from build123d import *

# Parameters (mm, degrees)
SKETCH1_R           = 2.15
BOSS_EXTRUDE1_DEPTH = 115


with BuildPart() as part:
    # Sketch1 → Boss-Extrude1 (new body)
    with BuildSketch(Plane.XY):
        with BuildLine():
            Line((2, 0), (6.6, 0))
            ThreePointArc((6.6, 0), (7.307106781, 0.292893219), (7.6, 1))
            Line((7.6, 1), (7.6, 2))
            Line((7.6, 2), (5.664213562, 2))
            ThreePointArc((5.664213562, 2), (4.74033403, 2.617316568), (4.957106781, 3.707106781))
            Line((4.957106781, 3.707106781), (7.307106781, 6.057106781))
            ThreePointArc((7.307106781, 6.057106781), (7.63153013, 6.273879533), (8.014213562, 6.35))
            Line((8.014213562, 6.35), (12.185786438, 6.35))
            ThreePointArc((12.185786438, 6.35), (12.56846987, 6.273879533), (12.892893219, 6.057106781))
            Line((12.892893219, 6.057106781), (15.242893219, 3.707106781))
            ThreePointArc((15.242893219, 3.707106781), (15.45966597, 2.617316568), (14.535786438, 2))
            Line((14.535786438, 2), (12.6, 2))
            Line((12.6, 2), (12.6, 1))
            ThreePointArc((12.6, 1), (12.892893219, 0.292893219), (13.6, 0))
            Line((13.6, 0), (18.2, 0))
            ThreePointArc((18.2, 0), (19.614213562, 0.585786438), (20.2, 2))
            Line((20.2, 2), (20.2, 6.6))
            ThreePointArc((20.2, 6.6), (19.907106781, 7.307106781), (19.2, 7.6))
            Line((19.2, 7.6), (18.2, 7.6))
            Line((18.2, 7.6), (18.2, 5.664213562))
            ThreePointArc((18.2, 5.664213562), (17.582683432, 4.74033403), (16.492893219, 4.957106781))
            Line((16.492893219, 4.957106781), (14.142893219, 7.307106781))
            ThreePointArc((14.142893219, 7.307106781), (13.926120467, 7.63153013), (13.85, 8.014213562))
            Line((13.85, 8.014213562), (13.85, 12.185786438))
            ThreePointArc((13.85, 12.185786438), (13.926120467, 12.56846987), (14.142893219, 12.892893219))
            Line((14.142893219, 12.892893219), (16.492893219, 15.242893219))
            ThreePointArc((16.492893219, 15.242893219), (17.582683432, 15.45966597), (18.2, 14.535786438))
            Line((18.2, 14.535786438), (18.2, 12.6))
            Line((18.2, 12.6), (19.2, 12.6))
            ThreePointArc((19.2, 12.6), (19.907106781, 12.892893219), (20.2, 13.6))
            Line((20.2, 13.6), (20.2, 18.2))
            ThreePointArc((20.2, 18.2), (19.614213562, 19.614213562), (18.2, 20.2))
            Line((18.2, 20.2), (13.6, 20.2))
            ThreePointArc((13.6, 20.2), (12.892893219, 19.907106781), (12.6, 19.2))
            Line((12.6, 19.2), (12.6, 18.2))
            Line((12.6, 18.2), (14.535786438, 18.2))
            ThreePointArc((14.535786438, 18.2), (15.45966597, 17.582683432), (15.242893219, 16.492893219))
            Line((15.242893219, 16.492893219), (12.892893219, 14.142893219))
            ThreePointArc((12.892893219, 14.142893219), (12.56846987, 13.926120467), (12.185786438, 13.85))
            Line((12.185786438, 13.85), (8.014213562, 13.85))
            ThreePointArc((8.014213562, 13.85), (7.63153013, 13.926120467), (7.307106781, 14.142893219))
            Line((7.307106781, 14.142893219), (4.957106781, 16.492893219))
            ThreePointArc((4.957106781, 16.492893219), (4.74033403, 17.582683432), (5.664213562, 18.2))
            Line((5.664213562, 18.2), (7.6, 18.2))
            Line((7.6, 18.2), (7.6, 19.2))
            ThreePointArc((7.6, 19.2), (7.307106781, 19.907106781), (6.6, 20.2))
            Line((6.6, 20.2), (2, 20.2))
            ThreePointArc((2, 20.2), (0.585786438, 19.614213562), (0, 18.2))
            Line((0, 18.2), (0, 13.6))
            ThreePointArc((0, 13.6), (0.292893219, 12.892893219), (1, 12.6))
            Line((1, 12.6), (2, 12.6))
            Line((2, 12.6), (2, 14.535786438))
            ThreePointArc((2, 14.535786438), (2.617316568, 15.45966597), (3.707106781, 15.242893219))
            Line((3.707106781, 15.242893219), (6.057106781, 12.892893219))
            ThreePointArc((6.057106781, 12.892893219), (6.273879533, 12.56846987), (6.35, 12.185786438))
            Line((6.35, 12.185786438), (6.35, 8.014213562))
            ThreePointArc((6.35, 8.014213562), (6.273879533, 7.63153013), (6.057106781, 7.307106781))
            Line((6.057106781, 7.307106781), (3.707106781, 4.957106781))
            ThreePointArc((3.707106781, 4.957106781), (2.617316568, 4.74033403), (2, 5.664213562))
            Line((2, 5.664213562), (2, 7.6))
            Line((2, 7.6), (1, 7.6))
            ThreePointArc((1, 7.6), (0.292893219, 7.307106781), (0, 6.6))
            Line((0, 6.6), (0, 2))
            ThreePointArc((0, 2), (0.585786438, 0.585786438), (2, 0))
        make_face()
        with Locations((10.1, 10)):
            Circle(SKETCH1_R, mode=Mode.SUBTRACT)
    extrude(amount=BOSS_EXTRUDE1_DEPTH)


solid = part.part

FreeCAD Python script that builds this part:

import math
import FreeCAD as App
import Part
import Sketcher
from FreeCAD import Vector

doc = App.newDocument("Part")
params = doc.addObject("Spreadsheet::Sheet", "Params")
for row, (alias, value) in enumerate([
    ("sketch1_radius", "1 mm"),
    ("sketch1_radius2", "2 mm"),
    ("sketch1_diameter", "4.3 mm"),
    ("sketch1_width", "4.6 mm"),
    ("pad1_length", "115 mm"),
], start=1):
    params.set(f"A{row}", alias)
    params.set(f"B{row}", "=" + value)
    params.setAlias(f"B{row}", alias)

body = doc.addObject("PartDesign::Body", "Body")

# Sketch on XY plane
sketch1 = doc.addObject("Sketcher::SketchObject", "Sketch")
body.addObject(sketch1)
sketch1.AttachmentSupport = (doc.XY_Plane, [""])
sketch1.MapMode = "FlatFace"
sketch1.addGeometry([
    Part.LineSegment(Vector(2, 0, 0), Vector(6.6, 0, 0)),  # 0
    Part.ArcOfCircle(Part.Circle(Vector(6.6, 1, 0), Vector(0, 0, 1), 1), math.radians(-90), math.radians(0)),  # 1
    Part.LineSegment(Vector(7.6, 1, 0), Vector(7.6, 2, 0)),  # 2
    Part.LineSegment(Vector(7.6, 2, 0), Vector(5.7, 2, 0)),  # 3
    Part.ArcOfCircle(Part.Circle(Vector(5.7, 3, 0), Vector(0, 0, 1), 1), math.radians(135), math.radians(270)),  # 4
    Part.LineSegment(Vector(5, 3.7, 0), Vector(7.3, 6.1, 0)),  # 5
    Part.ArcOfCircle(Part.Circle(Vector(8, 5.4, 0), Vector(0, 0, 1), 1), math.radians(90), math.radians(135)),  # 6
    Part.LineSegment(Vector(8, 6.3, 0), Vector(12.2, 6.3, 0)),  # 7
    Part.ArcOfCircle(Part.Circle(Vector(12.2, 5.4, 0), Vector(0, 0, 1), 1), math.radians(45), math.radians(90)),  # 8
    Part.LineSegment(Vector(12.9, 6.1, 0), Vector(15.2, 3.7, 0)),  # 9
    Part.ArcOfCircle(Part.Circle(Vector(14.5, 3, 0), Vector(0, 0, 1), 1), math.radians(-90), math.radians(45)),  # 10
    Part.LineSegment(Vector(14.5, 2, 0), Vector(12.6, 2, 0)),  # 11
    Part.LineSegment(Vector(12.6, 2, 0), Vector(12.6, 1, 0)),  # 12
    Part.ArcOfCircle(Part.Circle(Vector(13.6, 1, 0), Vector(0, 0, 1), 1), math.radians(-180), math.radians(-90)),  # 13
    Part.LineSegment(Vector(13.6, 0, 0), Vector(18.2, 0, 0)),  # 14
    Part.ArcOfCircle(Part.Circle(Vector(18.2, 2, 0), Vector(0, 0, 1), 2), math.radians(-90), math.radians(0)),  # 15
    Part.LineSegment(Vector(20.2, 2, 0), Vector(20.2, 6.6, 0)),  # 16
    Part.ArcOfCircle(Part.Circle(Vector(19.2, 6.6, 0), Vector(0, 0, 1), 1), math.radians(0), math.radians(90)),  # 17
    Part.LineSegment(Vector(19.2, 7.6, 0), Vector(18.2, 7.6, 0)),  # 18
    Part.LineSegment(Vector(18.2, 7.6, 0), Vector(18.2, 5.7, 0)),  # 19
    Part.ArcOfCircle(Part.Circle(Vector(17.2, 5.7, 0), Vector(0, 0, 1), 1), math.radians(-135), math.radians(0)),  # 20
    Part.LineSegment(Vector(16.5, 5, 0), Vector(14.1, 7.3, 0)),  # 21
    Part.ArcOfCircle(Part.Circle(Vector(14.8, 8, 0), Vector(0, 0, 1), 1), math.radians(180), math.radians(225)),  # 22
    Part.LineSegment(Vector(13.8, 8, 0), Vector(13.8, 12.2, 0)),  # 23
    Part.ArcOfCircle(Part.Circle(Vector(14.8, 12.2, 0), Vector(0, 0, 1), 1), math.radians(135), math.radians(180)),  # 24
    Part.LineSegment(Vector(14.1, 12.9, 0), Vector(16.5, 15.2, 0)),  # 25
    Part.ArcOfCircle(Part.Circle(Vector(17.2, 14.5, 0), Vector(0, 0, 1), 1), math.radians(0), math.radians(135)),  # 26
    Part.LineSegment(Vector(18.2, 14.5, 0), Vector(18.2, 12.6, 0)),  # 27
    Part.LineSegment(Vector(18.2, 12.6, 0), Vector(19.2, 12.6, 0)),  # 28
    Part.ArcOfCircle(Part.Circle(Vector(19.2, 13.6, 0), Vector(0, 0, 1), 1), math.radians(-90), math.radians(0)),  # 29
    Part.LineSegment(Vector(20.2, 13.6, 0), Vector(20.2, 18.2, 0)),  # 30
    Part.ArcOfCircle(Part.Circle(Vector(18.2, 18.2, 0), Vector(0, 0, 1), 2), math.radians(0), math.radians(90)),  # 31
    Part.LineSegment(Vector(18.2, 20.2, 0), Vector(13.6, 20.2, 0)),  # 32
    Part.ArcOfCircle(Part.Circle(Vector(13.6, 19.2, 0), Vector(0, 0, 1), 1), math.radians(90), math.radians(180)),  # 33
    Part.LineSegment(Vector(12.6, 19.2, 0), Vector(12.6, 18.2, 0)),  # 34
    Part.LineSegment(Vector(12.6, 18.2, 0), Vector(14.5, 18.2, 0)),  # 35
    Part.ArcOfCircle(Part.Circle(Vector(14.5, 17.2, 0), Vector(0, 0, 1), 1), math.radians(-45), math.radians(90)),  # 36
    Part.LineSegment(Vector(15.2, 16.5, 0), Vector(12.9, 14.1, 0)),  # 37
    Part.ArcOfCircle(Part.Circle(Vector(12.2, 14.8, 0), Vector(0, 0, 1), 1), math.radians(-90), math.radians(-45)),  # 38
    Part.LineSegment(Vector(12.2, 13.8, 0), Vector(8, 13.8, 0)),  # 39
    Part.ArcOfCircle(Part.Circle(Vector(8, 14.8, 0), Vector(0, 0, 1), 1), math.radians(-135), math.radians(-90)),  # 40
    Part.LineSegment(Vector(7.3, 14.1, 0), Vector(5, 16.5, 0)),  # 41
    Part.ArcOfCircle(Part.Circle(Vector(5.7, 17.2, 0), Vector(0, 0, 1), 1), math.radians(90), math.radians(225)),  # 42
    Part.LineSegment(Vector(5.7, 18.2, 0), Vector(7.6, 18.2, 0)),  # 43
    Part.LineSegment(Vector(7.6, 18.2, 0), Vector(7.6, 19.2, 0)),  # 44
    Part.ArcOfCircle(Part.Circle(Vector(6.6, 19.2, 0), Vector(0, 0, 1), 1), math.radians(0), math.radians(90)),  # 45
    Part.LineSegment(Vector(6.6, 20.2, 0), Vector(2, 20.2, 0)),  # 46
    Part.ArcOfCircle(Part.Circle(Vector(2, 18.2, 0), Vector(0, 0, 1), 2), math.radians(90), math.radians(180)),  # 47
    Part.LineSegment(Vector(0, 18.2, 0), Vector(0, 13.6, 0)),  # 48
    Part.ArcOfCircle(Part.Circle(Vector(1, 13.6, 0), Vector(0, 0, 1), 1), math.radians(-180), math.radians(-90)),  # 49
    Part.LineSegment(Vector(1, 12.6, 0), Vector(2, 12.6, 0)),  # 50
    Part.LineSegment(Vector(2, 12.6, 0), Vector(2, 14.5, 0)),  # 51
    Part.ArcOfCircle(Part.Circle(Vector(3, 14.5, 0), Vector(0, 0, 1), 1), math.radians(45), math.radians(180)),  # 52
    Part.LineSegment(Vector(3.7, 15.2, 0), Vector(6.1, 12.9, 0)),  # 53
    Part.ArcOfCircle(Part.Circle(Vector(5.4, 12.2, 0), Vector(0, 0, 1), 1), math.radians(0), math.radians(45)),  # 54
    Part.LineSegment(Vector(6.3, 12.2, 0), Vector(6.3, 8, 0)),  # 55
    Part.ArcOfCircle(Part.Circle(Vector(5.4, 8, 0), Vector(0, 0, 1), 1), math.radians(-45), math.radians(0)),  # 56
    Part.LineSegment(Vector(6.1, 7.3, 0), Vector(3.7, 5, 0)),  # 57
    Part.ArcOfCircle(Part.Circle(Vector(3, 5.7, 0), Vector(0, 0, 1), 1), math.radians(-180), math.radians(-45)),  # 58
    Part.LineSegment(Vector(2, 5.7, 0), Vector(2, 7.6, 0)),  # 59
    Part.LineSegment(Vector(2, 7.6, 0), Vector(1, 7.6, 0)),  # 60
    Part.ArcOfCircle(Part.Circle(Vector(1, 6.6, 0), Vector(0, 0, 1), 1), math.radians(90), math.radians(180)),  # 61
    Part.LineSegment(Vector(0, 6.6, 0), Vector(0, 2, 0)),  # 62
    Part.ArcOfCircle(Part.Circle(Vector(2, 2, 0), Vector(0, 0, 1), 2), math.radians(-180), math.radians(-90)),  # 63
    Part.Circle(Vector(10.1, 10, 0), Vector(0, 0, 1), 2.1),  # 64
], False)
sketch1.addConstraint([
    Sketcher.Constraint("Tangent", 0, 2, 1, 1),
    Sketcher.Constraint("Tangent", 1, 2, 2, 1),
    Sketcher.Constraint("Coincident", 2, 2, 3, 1),
    Sketcher.Constraint("Tangent", 3, 2, 4, 2),
    Sketcher.Constraint("Tangent", 4, 1, 5, 1),
    Sketcher.Constraint("Tangent", 5, 2, 6, 2),
    Sketcher.Constraint("Tangent", 6, 1, 7, 1),
    Sketcher.Constraint("Tangent", 7, 2, 8, 2),
    Sketcher.Constraint("Tangent", 8, 1, 9, 1),
    Sketcher.Constraint("Tangent", 9, 2, 10, 2),
    Sketcher.Constraint("Tangent", 10, 1, 11, 1),
    Sketcher.Constraint("Coincident", 11, 2, 12, 1),
    Sketcher.Constraint("Tangent", 12, 2, 13, 1),
    Sketcher.Constraint("Tangent", 13, 2, 14, 1),
    Sketcher.Constraint("Tangent", 14, 2, 15, 1),
    Sketcher.Constraint("Tangent", 15, 2, 16, 1),
    Sketcher.Constraint("Tangent", 16, 2, 17, 1),
    Sketcher.Constraint("Tangent", 17, 2, 18, 1),
    Sketcher.Constraint("Coincident", 18, 2, 19, 1),
    Sketcher.Constraint("Tangent", 19, 2, 20, 2),
    Sketcher.Constraint("Tangent", 20, 1, 21, 1),
    Sketcher.Constraint("Tangent", 21, 2, 22, 2),
    Sketcher.Constraint("Tangent", 22, 1, 23, 1),
    Sketcher.Constraint("Tangent", 23, 2, 24, 2),
    Sketcher.Constraint("Tangent", 24, 1, 25, 1),
    Sketcher.Constraint("Tangent", 25, 2, 26, 2),
    Sketcher.Constraint("Tangent", 26, 1, 27, 1),
    Sketcher.Constraint("Coincident", 27, 2, 28, 1),
    Sketcher.Constraint("Tangent", 28, 2, 29, 1),
    Sketcher.Constraint("Tangent", 29, 2, 30, 1),
    Sketcher.Constraint("Tangent", 30, 2, 31, 1),
    Sketcher.Constraint("Tangent", 31, 2, 32, 1),
    Sketcher.Constraint("Tangent", 32, 2, 33, 1),
    Sketcher.Constraint("Tangent", 33, 2, 34, 1),
    Sketcher.Constraint("Coincident", 34, 2, 35, 1),
    Sketcher.Constraint("Tangent", 35, 2, 36, 2),
    Sketcher.Constraint("Tangent", 36, 1, 37, 1),
    Sketcher.Constraint("Tangent", 37, 2, 38, 2),
    Sketcher.Constraint("Tangent", 38, 1, 39, 1),
    Sketcher.Constraint("Tangent", 39, 2, 40, 2),
    Sketcher.Constraint("Tangent", 40, 1, 41, 1),
    Sketcher.Constraint("Tangent", 41, 2, 42, 2),
    Sketcher.Constraint("Tangent", 42, 1, 43, 1),
    Sketcher.Constraint("Coincident", 43, 2, 44, 1),
    Sketcher.Constraint("Tangent", 44, 2, 45, 1),
    Sketcher.Constraint("Tangent", 45, 2, 46, 1),
    Sketcher.Constraint("Tangent", 46, 2, 47, 1),
    Sketcher.Constraint("Tangent", 47, 2, 48, 1),
    Sketcher.Constraint("Tangent", 48, 2, 49, 1),
    Sketcher.Constraint("Tangent", 49, 2, 50, 1),
    Sketcher.Constraint("Coincident", 50, 2, 51, 1),
    Sketcher.Constraint("Tangent", 51, 2, 52, 2),
    Sketcher.Constraint("Tangent", 52, 1, 53, 1),
    Sketcher.Constraint("Tangent", 53, 2, 54, 2),
    Sketcher.Constraint("Tangent", 54, 1, 55, 1),
    Sketcher.Constraint("Tangent", 55, 2, 56, 2),
    Sketcher.Constraint("Tangent", 56, 1, 57, 1),
    Sketcher.Constraint("Tangent", 57, 2, 58, 2),
    Sketcher.Constraint("Tangent", 58, 1, 59, 1),
    Sketcher.Constraint("Coincident", 59, 2, 60, 1),
    Sketcher.Constraint("Tangent", 60, 2, 61, 1),
    Sketcher.Constraint("Tangent", 61, 2, 62, 1),
    Sketcher.Constraint("Tangent", 62, 2, 63, 1),
    Sketcher.Constraint("Tangent", 63, 2, 0, 1),
    Sketcher.Constraint("Horizontal", 0),
    Sketcher.Constraint("Vertical", 2),
    Sketcher.Constraint("Horizontal", 3),
    Sketcher.Constraint("Horizontal", 7),
    Sketcher.Constraint("Horizontal", 11),
    Sketcher.Constraint("Vertical", 12),
    Sketcher.Constraint("Horizontal", 14),
    Sketcher.Constraint("Vertical", 16),
    Sketcher.Constraint("Horizontal", 18),
    Sketcher.Constraint("Vertical", 19),
    Sketcher.Constraint("Vertical", 23),
    Sketcher.Constraint("Vertical", 27),
    Sketcher.Constraint("Horizontal", 28),
    Sketcher.Constraint("Vertical", 30),
    Sketcher.Constraint("Horizontal", 32),
    Sketcher.Constraint("Vertical", 34),
    Sketcher.Constraint("Horizontal", 35),
    Sketcher.Constraint("Horizontal", 39),
    Sketcher.Constraint("Horizontal", 43),
    Sketcher.Constraint("Vertical", 44),
    Sketcher.Constraint("Horizontal", 46),
    Sketcher.Constraint("Vertical", 48),
    Sketcher.Constraint("Horizontal", 50),
    Sketcher.Constraint("Vertical", 51),
    Sketcher.Constraint("Vertical", 55),
    Sketcher.Constraint("Vertical", 59),
    Sketcher.Constraint("Horizontal", 60),
    Sketcher.Constraint("Vertical", 62),
    Sketcher.Constraint("Equal", 1, 4),
    Sketcher.Constraint("Equal", 4, 6),
    Sketcher.Constraint("Equal", 6, 8),
    Sketcher.Constraint("Equal", 8, 10),
    Sketcher.Constraint("Equal", 10, 13),
    Sketcher.Constraint("Equal", 13, 17),
    Sketcher.Constraint("Equal", 17, 20),
    Sketcher.Constraint("Equal", 20, 22),
    Sketcher.Constraint("Equal", 22, 24),
    Sketcher.Constraint("Equal", 24, 26),
    Sketcher.Constraint("Equal", 26, 29),
    Sketcher.Constraint("Equal", 15, 31),
    Sketcher.Constraint("Equal", 29, 33),
    Sketcher.Constraint("Equal", 33, 36),
    Sketcher.Constraint("Equal", 36, 38),
    Sketcher.Constraint("Equal", 38, 40),
    Sketcher.Constraint("Equal", 40, 42),
    Sketcher.Constraint("Equal", 42, 45),
    Sketcher.Constraint("Equal", 31, 47),
    Sketcher.Constraint("Equal", 45, 49),
    Sketcher.Constraint("Equal", 49, 52),
    Sketcher.Constraint("Equal", 52, 54),
    Sketcher.Constraint("Equal", 54, 56),
    Sketcher.Constraint("Equal", 56, 58),
    Sketcher.Constraint("Equal", 58, 61),
    Sketcher.Constraint("Equal", 47, 63),
    Sketcher.Constraint("PointOnObject", 0, 2, -1),
    Sketcher.Constraint("PointOnObject", 13, 2, -1),
    Sketcher.Constraint("PointOnObject", 47, 2, -2),
    Sketcher.Constraint("PointOnObject", 61, 2, -2),
    Sketcher.Constraint("Perpendicular", 5, 9),
    Sketcher.Constraint("Parallel", 9, 21),
    Sketcher.Constraint("Perpendicular", 21, 25),
    Sketcher.Constraint("Parallel", 25, 37),
    Sketcher.Constraint("Perpendicular", 37, 41),
    Sketcher.Constraint("Parallel", 41, 53),
    Sketcher.Constraint("Perpendicular", 53, 57),
    Sketcher.Constraint("Horizontal", 4, 3, 10, 3),
    Sketcher.Constraint("Horizontal", 36, 3, 42, 3),
    Sketcher.Constraint("Horizontal", 33, 3, 45, 3),
    Sketcher.Constraint("Horizontal", 29, 3, 49, 3),
    Sketcher.Constraint("Horizontal", 26, 3, 52, 3),
    Sketcher.Constraint("Horizontal", 24, 3, 54, 3),
    Sketcher.Constraint("Horizontal", 22, 3, 56, 3),
    Sketcher.Constraint("Horizontal", 20, 3, 58, 3),
    Sketcher.Constraint("Horizontal", 17, 3, 61, 3),
    Sketcher.Constraint("Horizontal", 63, 3, 2, 2),
    Sketcher.Constraint("Horizontal", 5, 2, 8, 1),
    Sketcher.Constraint("Horizontal", 30, 2, 34, 2),
    Sketcher.Constraint("Vertical", 20, 3, 26, 3),
    Sketcher.Constraint("Vertical", 17, 3, 29, 3),
    Sketcher.Constraint("Vertical", 13, 3, 33, 3),
    Sketcher.Constraint("Vertical", 10, 3, 36, 3),
    Sketcher.Constraint("Vertical", 8, 3, 38, 3),
    Sketcher.Constraint("Vertical", 6, 3, 40, 3),
    Sketcher.Constraint("Vertical", 1, 3, 45, 3),
    Sketcher.Constraint("Vertical", 14, 2, 18, 2),
    Sketcher.Constraint("Vertical", 46, 2, 50, 2),
    Sketcher.Constraint("Equal", 3, 11),
    Sketcher.Constraint("Equal", 0, 14),
    Sketcher.Constraint("Equal", 46, 16),
    Sketcher.Constraint("Equal", 43, 19),
    Sketcher.Constraint("Equal", 39, 23),
    Sketcher.Constraint("Equal", 19, 27),
    Sketcher.Constraint("Equal", 16, 30),
    Sketcher.Constraint("Equal", 9, 21),
    Sketcher.Constraint("Radius", 1, 1.0),
    Sketcher.Constraint("Radius", 15, 2.0),
    Sketcher.Constraint("Diameter", 64, 4.3),
    Sketcher.Constraint("DistanceX", 0, 1, 0, 2, 4.6),
    Sketcher.Constraint("DistanceY", -1, 1, 64, 3, 10.0),
    Sketcher.Constraint("DistanceX", -1, 1, 13, 3, 13.6),
    Sketcher.Constraint("DistanceX", -1, 1, 64, 3, 10.1),
    Sketcher.Constraint("DistanceY", -1, 1, 6, 3, 5.35),
    Sketcher.Constraint("DistanceX", 3, 2, 3, 1, 1.935786),
])
sketch1.setExpression("Constraints[158]", "Params.sketch1_radius")
sketch1.setExpression("Constraints[159]", "Params.sketch1_radius2")
sketch1.setExpression("Constraints[160]", "Params.sketch1_diameter")
sketch1.setExpression("Constraints[161]", "Params.sketch1_width")
pad1 = doc.addObject("PartDesign::Pad", "Pad")
body.addObject(pad1)
pad1.Profile = sketch1
pad1.setExpression("Length", "Params.pad1_length")

doc.recompute()
